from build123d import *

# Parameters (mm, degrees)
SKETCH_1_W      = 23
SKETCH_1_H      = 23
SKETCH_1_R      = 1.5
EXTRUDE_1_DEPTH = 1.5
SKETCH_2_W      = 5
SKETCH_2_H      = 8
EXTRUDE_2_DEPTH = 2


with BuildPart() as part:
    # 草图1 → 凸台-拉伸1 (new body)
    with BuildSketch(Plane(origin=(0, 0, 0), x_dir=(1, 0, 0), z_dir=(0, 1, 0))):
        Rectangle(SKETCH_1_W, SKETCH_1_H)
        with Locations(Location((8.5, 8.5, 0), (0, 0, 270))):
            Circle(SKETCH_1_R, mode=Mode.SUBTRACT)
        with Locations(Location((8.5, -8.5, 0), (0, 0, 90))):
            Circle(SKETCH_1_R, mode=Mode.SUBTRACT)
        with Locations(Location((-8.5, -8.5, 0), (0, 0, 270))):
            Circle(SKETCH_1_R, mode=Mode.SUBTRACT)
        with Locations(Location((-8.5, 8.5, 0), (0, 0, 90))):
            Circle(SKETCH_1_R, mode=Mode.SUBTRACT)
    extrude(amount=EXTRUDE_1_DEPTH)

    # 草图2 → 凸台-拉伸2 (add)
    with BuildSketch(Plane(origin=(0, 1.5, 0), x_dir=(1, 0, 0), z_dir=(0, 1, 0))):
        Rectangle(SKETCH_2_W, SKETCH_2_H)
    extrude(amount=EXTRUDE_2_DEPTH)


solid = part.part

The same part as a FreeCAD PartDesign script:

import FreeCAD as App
import Part
import Sketcher
Q = App.Units.Quantity

doc = App.newDocument("Part")
params = doc.addObject("Spreadsheet::Sheet", "Params")
for row, (alias, value) in enumerate([
    ("sketch1_diameter", "3 mm"),
    ("sketch1_width", "23 mm"),
    ("pad1_length", "1.5 mm"),
    ("sketch2_width", "5 mm"),
    ("sketch2_height", "8 mm"),
    ("pad2_length", "2 mm"),
], start=1):
    params.set(f"A{row}", alias)
    params.set(f"B{row}", "=" + value)
    params.setAlias(f"B{row}", alias)

body = doc.addObject("PartDesign::Body", "Body")

# Sketch on XZ plane
sketch1 = body.newObject("Sketcher::SketchObject", "Sketch")
sketch1.AttachmentSupport = (doc.getObject("XZ_Plane"), [""])
sketch1.MapMode = "FlatFace"
sketch1.addGeometry([
    Part.LineSegment(App.Vector(-11.5, -11.5, 0), App.Vector(-11.5, 11.5, 0)),  # 0
    Part.LineSegment(App.Vector(-11.5, 11.5, 0), App.Vector(11.5, 11.5, 0)),  # 1
    Part.LineSegment(App.Vector(11.5, 11.5, 0), App.Vector(11.5, -11.5, 0)),  # 2
    Part.LineSegment(App.Vector(11.5, -11.5, 0), App.Vector(-11.5, -11.5, 0)),  # 3
    Part.Circle(App.Vector(-8.5, 8.5, 0), App.Vector(0, 0, 1), 1.5),  # 4
    Part.Circle(App.Vector(8.5, 8.5, 0), App.Vector(0, 0, 1), 1.5),  # 5
    Part.Circle(App.Vector(-8.5, -8.5, 0), App.Vector(0, 0, 1), 1.5),  # 6
    Part.Circle(App.Vector(8.5, -8.5, 0), App.Vector(0, 0, 1), 1.5),  # 7
], False)
sketch1.addConstraint([
    Sketcher.Constraint("Coincident", 0, 2, 1, 1),
    Sketcher.Constraint("Coincident", 1, 2, 2, 1),
    Sketcher.Constraint("Coincident", 2, 2, 3, 1),
    Sketcher.Constraint("Coincident", 3, 2, 0, 1),
    Sketcher.Constraint("Vertical", 0),
    Sketcher.Constraint("Horizontal", 1),
    Sketcher.Constraint("Vertical", 2),
    Sketcher.Constraint("Horizontal", 3),
    Sketcher.Constraint("Equal", 4, 5),
    Sketcher.Constraint("Equal", 5, 6),
    Sketcher.Constraint("Equal", 6, 7),
    Sketcher.Constraint("Symmetric", 5, 3, 6, 3, -1, 1),
    Sketcher.Constraint("Symmetric", 4, 3, 7, 3, -1, 1),
    Sketcher.Constraint("Symmetric", 0, 2, 2, 2, -1, 1),
    Sketcher.Constraint("Symmetric", 4, 3, 5, 3, -2),
    Sketcher.Constraint("Equal", 3, 0),
    Sketcher.Constraint("Diameter", 4, Q("3 mm")),
    Sketcher.Constraint("DistanceX", 1, 1, 1, 2, Q("23 mm")),
    Sketcher.Constraint("DistanceX", 4, 3, 5, 3, Q("17 mm")),
    Sketcher.Constraint("DistanceY", 6, 3, 4, 3, Q("17 mm")),
])
sketch1.setExpression("Constraints[16]", "Params.sketch1_diameter")
sketch1.setExpression("Constraints[17]", "Params.sketch1_width")
pad1 = body.newObject("PartDesign::Pad", "Pad")
pad1.Profile = sketch1
pad1.setExpression("Length", "Params.pad1_length")
pad1.Reversed = True

# Sketch on XZ plane
sketch2 = body.newObject("Sketcher::SketchObject", "Sketch001")
sketch2.AttachmentSupport = (doc.getObject("XZ_Plane"), [""])
sketch2.MapMode = "FlatFace"
sketch2.AttachmentOffset = App.Placement(App.Vector(0, 0, -1.5), App.Rotation())
sketch2.addGeometry([
    Part.LineSegment(App.Vector(-2, -4, 0), App.Vector(-2, 4, 0)),
    Part.LineSegment(App.Vector(-2, 4, 0), App.Vector(2, 4, 0)),
    Part.LineSegment(App.Vector(2, 4, 0), App.Vector(2, -4, 0)),
    Part.LineSegment(App.Vector(2, -4, 0), App.Vector(-2, -4, 0)),
], False)
sketch2.addConstraint([
    Sketcher.Constraint("Coincident", 0, 2, 1, 1),
    Sketcher.Constraint("Coincident", 1, 2, 2, 1),
    Sketcher.Constraint("Coincident", 2, 2, 3, 1),
    Sketcher.Constraint("Coincident", 3, 2, 0, 1),
    Sketcher.Constraint("Vertical", 0),
    Sketcher.Constraint("Horizontal", 1),
    Sketcher.Constraint("Vertical", 2),
    Sketcher.Constraint("Horizontal", 3),
    Sketcher.Constraint("Symmetric", 0, 2, 2, 2, -1, 1),
    Sketcher.Constraint("DistanceX", 1, 1, 1, 2, Q("5 mm")),
    Sketcher.Constraint("DistanceY", 0, 1, 0, 2, Q("8 mm")),
])
sketch2.setExpression("Constraints[9]", "Params.sketch2_width")
sketch2.setExpression("Constraints[10]", "Params.sketch2_height")
pad2 = body.newObject("PartDesign::Pad", "Pad001")
pad2.Profile = sketch2
pad2.setExpression("Length", "Params.pad2_length")
pad2.Reversed = True

doc.recompute()
